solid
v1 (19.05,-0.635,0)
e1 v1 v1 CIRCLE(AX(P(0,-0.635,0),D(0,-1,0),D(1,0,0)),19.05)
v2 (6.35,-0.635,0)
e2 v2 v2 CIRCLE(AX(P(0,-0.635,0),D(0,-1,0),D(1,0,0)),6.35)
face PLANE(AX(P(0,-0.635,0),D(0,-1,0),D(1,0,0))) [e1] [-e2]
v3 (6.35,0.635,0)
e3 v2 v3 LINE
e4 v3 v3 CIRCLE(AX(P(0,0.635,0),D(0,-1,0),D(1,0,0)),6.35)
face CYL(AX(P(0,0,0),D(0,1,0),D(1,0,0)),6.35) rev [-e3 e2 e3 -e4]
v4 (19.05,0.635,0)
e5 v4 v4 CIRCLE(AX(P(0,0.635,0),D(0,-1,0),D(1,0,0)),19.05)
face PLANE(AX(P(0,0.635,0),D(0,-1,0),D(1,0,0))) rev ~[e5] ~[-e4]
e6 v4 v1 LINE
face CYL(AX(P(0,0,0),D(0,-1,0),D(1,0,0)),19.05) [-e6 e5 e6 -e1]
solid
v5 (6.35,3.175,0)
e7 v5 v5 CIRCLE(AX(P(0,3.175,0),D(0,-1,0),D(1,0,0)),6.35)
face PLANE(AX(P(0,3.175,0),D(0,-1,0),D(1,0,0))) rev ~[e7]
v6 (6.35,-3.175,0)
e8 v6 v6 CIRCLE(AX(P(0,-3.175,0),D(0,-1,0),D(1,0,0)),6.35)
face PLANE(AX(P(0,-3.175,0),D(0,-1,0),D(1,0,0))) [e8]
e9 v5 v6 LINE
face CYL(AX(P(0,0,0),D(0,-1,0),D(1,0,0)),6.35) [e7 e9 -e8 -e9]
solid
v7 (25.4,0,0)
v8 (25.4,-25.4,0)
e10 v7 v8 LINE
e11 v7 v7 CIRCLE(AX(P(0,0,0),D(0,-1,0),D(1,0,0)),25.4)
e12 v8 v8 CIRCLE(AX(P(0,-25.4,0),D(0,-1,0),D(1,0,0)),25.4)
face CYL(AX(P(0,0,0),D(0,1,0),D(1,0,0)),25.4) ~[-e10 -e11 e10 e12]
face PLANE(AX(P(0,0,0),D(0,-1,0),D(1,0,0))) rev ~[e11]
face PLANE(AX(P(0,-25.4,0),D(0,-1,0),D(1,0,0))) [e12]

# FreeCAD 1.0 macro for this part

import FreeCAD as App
import Part
import Sketcher

V = App.Vector
Q = App.Units.Quantity

doc = App.newDocument("Part")
body = doc.addObject("PartDesign::Body", "Body")

# Sketch on XZ plane
sketch1 = doc.addObject("Sketcher::SketchObject", "Sketch")
body.addObject(sketch1)
sketch1.AttachmentSupport = (doc.XZ_Plane, [""])
sketch1.MapMode = "FlatFace"
sketch1.addGeometry(Part.Circle(V(0, 0, 0), V(0, 0, 1), 25), False)
sketch1.addConstraint([
    Sketcher.Constraint("Coincident", 0, 3, -1, 1),
    Sketcher.Constraint("Diameter", 0, Q("2 in")),
])
pad1 = doc.addObject("PartDesign::Pad", "Pad")
body.addObject(pad1)
pad1.Profile = sketch1
pad1.Length = Q("1 in")
body2 = doc.addObject("PartDesign::Body", "Body001")

# Sketch on XZ plane
sketch2 = doc.addObject("Sketcher::SketchObject", "Sketch001")
body2.addObject(sketch2)
sketch2.AttachmentSupport = (doc.getObject("XZ_Plane001"), [""])
sketch2.MapMode = "FlatFace"
sketch2.addGeometry([
    Part.Circle(V(0, 0, 0), V(0, 0, 1), 19),
    Part.Circle(V(0, 0, 0), V(0, 0, 1), 6),
], False)
sketch2.addConstraint([
    Sketcher.Constraint("Coincident", 0, 3, -1, 1),
    Sketcher.Constraint("Coincident", 1, 3, -1, 1),
    Sketcher.Constraint("Diameter", 0, Q("1.5 in")),
    Sketcher.Constraint("Diameter", 1, Q("0.5 in")),
])
pad2 = doc.addObject("PartDesign::Pad", "Pad001")
body2.addObject(pad2)
pad2.Profile = sketch2
pad2.Length = Q("0.05 in")
pad2.Midplane = True
body3 = doc.addObject("PartDesign::Body", "Body002")

# Sketch on XZ plane
sketch3 = doc.addObject("Sketcher::SketchObject", "Sketch002")
body3.addObject(sketch3)
sketch3.AttachmentSupport = (doc.getObject("XZ_Plane002"), [""])
sketch3.MapMode = "FlatFace"
sketch3.addGeometry(Part.Circle(V(0, 0, 0), V(0, 0, 1), 6), False)
sketch3.addConstraint([
    Sketcher.Constraint("Coincident", 0, 3, -1, 1),
    Sketcher.Constraint("Diameter", 0, Q("0.5 in")),
])
pad3 = doc.addObject("PartDesign::Pad", "Pad002")
body3.addObject(pad3)
pad3.Profile = sketch3
pad3.Length = Q("0.25 in")
pad3.Midplane = True

doc.recompute()
